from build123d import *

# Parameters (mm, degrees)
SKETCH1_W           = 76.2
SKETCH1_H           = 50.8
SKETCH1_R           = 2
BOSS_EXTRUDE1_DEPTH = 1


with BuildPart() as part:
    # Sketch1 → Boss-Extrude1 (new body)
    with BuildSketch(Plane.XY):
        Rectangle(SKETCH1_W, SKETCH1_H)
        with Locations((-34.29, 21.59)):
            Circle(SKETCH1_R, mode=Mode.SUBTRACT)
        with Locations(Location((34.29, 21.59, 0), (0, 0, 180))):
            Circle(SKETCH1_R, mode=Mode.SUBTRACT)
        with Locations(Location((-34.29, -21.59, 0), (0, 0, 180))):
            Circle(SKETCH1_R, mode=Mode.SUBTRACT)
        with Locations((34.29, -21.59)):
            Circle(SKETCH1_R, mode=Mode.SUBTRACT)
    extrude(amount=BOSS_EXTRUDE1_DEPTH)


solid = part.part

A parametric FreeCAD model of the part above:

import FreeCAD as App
import Part
import Sketcher
Q = App.Units.Quantity


def add_polygon(sketch, points):
    """Adds a closed chain of lines whose ends are joined by coincident constraints."""
    first, n = sketch.GeometryCount, len(points)
    for a, b in zip(points, points[1:] + points[:1]):
        sketch.addGeometry(Part.LineSegment(App.Vector(*a, 0), App.Vector(*b, 0)), False)
    for i in range(n):
        sketch.addConstraint(Sketcher.Constraint("Coincident", first + i, 2, first + (i + 1) % n, 1))

doc = App.newDocument("Part")
body = doc.addObject("PartDesign::Body", "Body")

# Sketch on XY plane
sketch1 = doc.addObject("Sketcher::SketchObject", "Sketch")
body.addObject(sketch1)
sketch1.AttachmentSupport = (doc.XY_Plane, [""])
sketch1.MapMode = "FlatFace"
add_polygon(sketch1, [(-38.1, 25.4), (-38.1, -25.4), (38.1, -25.4), (38.1, 25.4)])  # lines 0-3
sketch1.addGeometry(Part.Circle(App.Vector(-34.3, -21.6, 0), App.Vector(0, 0, 1), 2), False)  # 4
sketch1.addGeometry(Part.Circle(App.Vector(34.3, -21.6, 0), App.Vector(0, 0, 1), 2), False)  # 5
sketch1.addGeometry(Part.Circle(App.Vector(-34.3, 21.6, 0), App.Vector(0, 0, 1), 2), False)  # 6
sketch1.addGeometry(Part.Circle(App.Vector(34.3, 21.6, 0), App.Vector(0, 0, 1), 2), False)  # 7
sketch1.addConstraint(Sketcher.Constraint("Vertical", 0))
sketch1.addConstraint(Sketcher.Constraint("Horizontal", 1))
sketch1.addConstraint(Sketcher.Constraint("Vertical", 2))
sketch1.addConstraint(Sketcher.Constraint("Horizontal", 3))
sketch1.addConstraint(Sketcher.Constraint("Equal", 4, 5))
sketch1.addConstraint(Sketcher.Constraint("Equal", 5, 6))
sketch1.addConstraint(Sketcher.Constraint("Equal", 6, 7))
sketch1.addConstraint(Sketcher.Constraint("Symmetric", 5, 3, 6, 3, -1, 1))
sketch1.addConstraint(Sketcher.Constraint("Symmetric", 4, 3, 7, 3, -1, 1))
sketch1.addConstraint(Sketcher.Constraint("Symmetric", 0, 2, 2, 2, -1, 1))
sketch1.addConstraint(Sketcher.Constraint("Symmetric", 4, 3, 5, 3, -2))
sketch1.addConstraint(Sketcher.Constraint("Diameter", 4, Q("4 mm")))
sketch1.addConstraint(Sketcher.Constraint("DistanceX", 1, 1, 1, 2, Q("76.2 mm")))
sketch1.addConstraint(Sketcher.Constraint("DistanceY", 0, 2, 0, 1, Q("50.8 mm")))
sketch1.addConstraint(Sketcher.Constraint("DistanceX", 4, 3, -1, 1, Q("34.29 mm")))
sketch1.addConstraint(Sketcher.Constraint("DistanceY", 4, 3, -1, 1, Q("21.59 mm")))
pad1 = doc.addObject("PartDesign::Pad", "Pad")
body.addObject(pad1)
pad1.Profile = sketch1
pad1.Length = 1

doc.recompute()
